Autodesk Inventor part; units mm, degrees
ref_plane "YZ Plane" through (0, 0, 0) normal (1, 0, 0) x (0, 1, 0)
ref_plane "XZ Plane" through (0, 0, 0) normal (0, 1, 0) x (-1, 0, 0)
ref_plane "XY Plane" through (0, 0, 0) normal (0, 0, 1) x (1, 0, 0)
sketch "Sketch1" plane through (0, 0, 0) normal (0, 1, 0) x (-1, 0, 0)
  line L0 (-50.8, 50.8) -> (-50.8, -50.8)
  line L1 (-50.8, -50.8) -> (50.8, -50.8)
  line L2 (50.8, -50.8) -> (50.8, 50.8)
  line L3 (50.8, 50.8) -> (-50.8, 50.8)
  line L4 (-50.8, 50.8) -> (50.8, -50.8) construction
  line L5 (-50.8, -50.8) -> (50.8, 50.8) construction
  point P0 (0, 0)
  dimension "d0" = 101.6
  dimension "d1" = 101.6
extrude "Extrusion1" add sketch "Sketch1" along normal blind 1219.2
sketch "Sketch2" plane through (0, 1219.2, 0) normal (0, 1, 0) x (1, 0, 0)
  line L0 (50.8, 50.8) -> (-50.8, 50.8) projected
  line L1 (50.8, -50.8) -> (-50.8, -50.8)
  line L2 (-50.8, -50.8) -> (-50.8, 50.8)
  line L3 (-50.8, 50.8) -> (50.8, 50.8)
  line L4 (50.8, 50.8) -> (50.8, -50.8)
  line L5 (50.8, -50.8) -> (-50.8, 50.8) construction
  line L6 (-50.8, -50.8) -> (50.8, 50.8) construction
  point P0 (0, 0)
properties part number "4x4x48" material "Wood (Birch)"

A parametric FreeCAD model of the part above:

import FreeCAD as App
import Part
import Sketcher

V = App.Vector
Q = App.Units.Quantity

doc = App.newDocument("Part")
body = doc.addObject("PartDesign::Body", "Body")

# Sketch on XZ plane
sketch1 = doc.addObject("Sketcher::SketchObject", "Sketch")
body.addObject(sketch1)
sketch1.AttachmentSupport = (doc.XZ_Plane, [""])
sketch1.MapMode = "FlatFace"
sketch1.addGeometry(Part.LineSegment(V(-50.8, 50.8, 0), V(50.8, 50.8, 0)), False)
sketch1.addGeometry(Part.LineSegment(V(50.8, 50.8, 0), V(50.8, -50.8, 0)), False)
sketch1.addGeometry(Part.LineSegment(V(50.8, -50.8, 0), V(-50.8, -50.8, 0)), False)
sketch1.addGeometry(Part.LineSegment(V(-50.8, -50.8, 0), V(-50.8, 50.8, 0)), False)
sketch1.addConstraint(Sketcher.Constraint("Coincident", 0, 2, 1, 1))
sketch1.addConstraint(Sketcher.Constraint("Coincident", 1, 2, 2, 1))
sketch1.addConstraint(Sketcher.Constraint("Coincident", 2, 2, 3, 1))
sketch1.addConstraint(Sketcher.Constraint("Coincident", 3, 2, 0, 1))
sketch1.addConstraint(Sketcher.Constraint("Horizontal", 0))
sketch1.addConstraint(Sketcher.Constraint("Vertical", 1))
sketch1.addConstraint(Sketcher.Constraint("Horizontal", 2))
sketch1.addConstraint(Sketcher.Constraint("Vertical", 3))
sketch1.addConstraint(Sketcher.Constraint("Symmetric", 0, 2, 2, 2, -1, 1))
sketch1.addConstraint(Sketcher.Constraint("Equal", 2, 1))
sketch1.addConstraint(Sketcher.Constraint("DistanceX", 0, 1, 0, 2, Q("4 in")))
pad1 = doc.addObject("PartDesign::Pad", "Pad")
body.addObject(pad1)
pad1.Profile = sketch1
pad1.Length = Q("48 in")
pad1.Reversed = True

doc.recompute()
